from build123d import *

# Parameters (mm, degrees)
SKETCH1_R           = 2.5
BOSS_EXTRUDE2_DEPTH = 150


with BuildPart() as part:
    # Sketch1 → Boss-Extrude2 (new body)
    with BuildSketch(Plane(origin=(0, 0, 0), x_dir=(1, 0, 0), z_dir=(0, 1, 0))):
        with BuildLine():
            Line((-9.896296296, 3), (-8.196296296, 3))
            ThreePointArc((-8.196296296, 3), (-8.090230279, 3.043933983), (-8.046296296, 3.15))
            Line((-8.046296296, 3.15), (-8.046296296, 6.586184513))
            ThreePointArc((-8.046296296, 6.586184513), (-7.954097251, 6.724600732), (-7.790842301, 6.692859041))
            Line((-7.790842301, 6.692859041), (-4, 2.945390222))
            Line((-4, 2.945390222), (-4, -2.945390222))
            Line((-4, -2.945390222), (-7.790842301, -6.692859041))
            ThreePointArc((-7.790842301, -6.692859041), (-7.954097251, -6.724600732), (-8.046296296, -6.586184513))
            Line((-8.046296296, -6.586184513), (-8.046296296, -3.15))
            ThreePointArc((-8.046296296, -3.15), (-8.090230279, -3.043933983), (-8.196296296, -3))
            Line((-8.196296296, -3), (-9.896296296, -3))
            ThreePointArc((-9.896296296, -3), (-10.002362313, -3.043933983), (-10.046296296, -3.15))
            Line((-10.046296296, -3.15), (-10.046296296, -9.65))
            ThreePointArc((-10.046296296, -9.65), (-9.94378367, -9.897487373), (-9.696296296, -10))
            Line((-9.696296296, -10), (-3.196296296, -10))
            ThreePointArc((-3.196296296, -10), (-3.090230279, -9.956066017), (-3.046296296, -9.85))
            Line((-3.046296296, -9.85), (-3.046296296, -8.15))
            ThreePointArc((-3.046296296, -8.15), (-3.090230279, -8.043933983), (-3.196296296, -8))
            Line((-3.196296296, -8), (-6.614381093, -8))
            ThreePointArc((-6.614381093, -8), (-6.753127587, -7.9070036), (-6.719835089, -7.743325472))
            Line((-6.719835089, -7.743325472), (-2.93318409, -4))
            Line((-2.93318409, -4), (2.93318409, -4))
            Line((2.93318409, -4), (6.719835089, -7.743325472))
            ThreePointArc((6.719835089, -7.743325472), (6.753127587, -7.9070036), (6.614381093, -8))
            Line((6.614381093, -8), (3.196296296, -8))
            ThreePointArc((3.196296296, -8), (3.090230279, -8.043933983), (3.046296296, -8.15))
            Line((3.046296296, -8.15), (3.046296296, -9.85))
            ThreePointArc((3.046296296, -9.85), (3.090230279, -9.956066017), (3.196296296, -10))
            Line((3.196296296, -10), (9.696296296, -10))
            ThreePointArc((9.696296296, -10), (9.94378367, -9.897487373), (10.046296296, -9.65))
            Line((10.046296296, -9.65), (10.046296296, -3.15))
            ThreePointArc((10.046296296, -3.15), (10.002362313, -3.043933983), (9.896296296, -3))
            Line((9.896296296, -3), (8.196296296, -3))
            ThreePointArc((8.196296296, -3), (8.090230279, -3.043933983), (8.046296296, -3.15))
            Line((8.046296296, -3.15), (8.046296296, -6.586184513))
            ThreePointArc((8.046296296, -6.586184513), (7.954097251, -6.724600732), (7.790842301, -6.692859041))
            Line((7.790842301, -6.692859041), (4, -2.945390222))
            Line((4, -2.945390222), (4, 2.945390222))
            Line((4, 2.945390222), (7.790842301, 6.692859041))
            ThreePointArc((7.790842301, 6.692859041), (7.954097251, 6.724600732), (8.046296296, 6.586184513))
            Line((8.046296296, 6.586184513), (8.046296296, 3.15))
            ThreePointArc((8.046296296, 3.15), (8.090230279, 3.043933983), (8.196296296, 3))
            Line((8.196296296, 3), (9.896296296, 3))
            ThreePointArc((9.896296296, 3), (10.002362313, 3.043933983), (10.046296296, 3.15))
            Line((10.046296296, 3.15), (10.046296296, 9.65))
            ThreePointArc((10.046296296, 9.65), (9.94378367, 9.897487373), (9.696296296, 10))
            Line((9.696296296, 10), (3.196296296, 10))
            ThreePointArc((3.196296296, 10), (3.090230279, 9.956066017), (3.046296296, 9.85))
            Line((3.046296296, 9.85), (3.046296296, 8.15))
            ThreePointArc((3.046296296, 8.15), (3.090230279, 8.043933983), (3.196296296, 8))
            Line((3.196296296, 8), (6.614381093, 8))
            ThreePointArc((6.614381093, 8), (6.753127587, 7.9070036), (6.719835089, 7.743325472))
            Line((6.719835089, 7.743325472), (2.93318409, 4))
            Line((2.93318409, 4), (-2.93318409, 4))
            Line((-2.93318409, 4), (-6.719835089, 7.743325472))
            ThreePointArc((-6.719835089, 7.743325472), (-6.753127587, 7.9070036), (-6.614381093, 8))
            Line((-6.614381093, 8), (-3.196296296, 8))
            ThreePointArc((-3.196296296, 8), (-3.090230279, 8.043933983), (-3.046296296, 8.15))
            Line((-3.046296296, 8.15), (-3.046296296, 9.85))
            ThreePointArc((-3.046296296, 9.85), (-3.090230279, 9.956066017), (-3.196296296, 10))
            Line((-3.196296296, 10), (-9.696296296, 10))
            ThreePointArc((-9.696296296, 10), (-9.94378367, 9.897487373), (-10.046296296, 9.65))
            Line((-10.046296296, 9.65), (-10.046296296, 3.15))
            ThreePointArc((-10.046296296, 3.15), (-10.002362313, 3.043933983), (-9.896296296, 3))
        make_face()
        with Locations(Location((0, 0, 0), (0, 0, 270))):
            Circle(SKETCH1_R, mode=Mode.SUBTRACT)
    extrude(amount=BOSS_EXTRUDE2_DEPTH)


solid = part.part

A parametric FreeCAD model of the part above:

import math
import FreeCAD as App
import Part
import Sketcher
from FreeCAD import Vector

doc = App.newDocument("Part")
body = doc.addObject("PartDesign::Body", "Body")

# Sketch on XZ plane
sketch1 = body.newObject("Sketcher::SketchObject", "Sketch")
sketch1.AttachmentSupport = (doc.getObject("XZ_Plane"), [""])
sketch1.MapMode = "FlatFace"
sketch1.addGeometry([
    Part.LineSegment(Vector(-9.9, -3, 0), Vector(-8.2, -3, 0)),  # 0
    Part.ArcOfCircle(Part.Circle(Vector(-8.2, -3.15, 0), Vector(0, 0, 1), 0.15), math.radians(0), math.radians(90)),  # 1
    Part.LineSegment(Vector(-8.05, -3.15, 0), Vector(-8.05, -6.59, 0)),  # 2
    Part.ArcOfCircle(Part.Circle(Vector(-7.9, -6.59, 0), Vector(0, 0, 1), 0.15), math.radians(180), math.radians(315)),  # 3
    Part.LineSegment(Vector(-7.79, -6.69, 0), Vector(-4, -2.95, 0)),  # 4
    Part.LineSegment(Vector(-4, -2.95, 0), Vector(-4, 2.95, 0)),  # 5
    Part.LineSegment(Vector(-4, 2.95, 0), Vector(-7.79, 6.69, 0)),  # 6
    Part.ArcOfCircle(Part.Circle(Vector(-7.9, 6.59, 0), Vector(0, 0, 1), 0.15), math.radians(45), math.radians(180)),  # 7
    Part.LineSegment(Vector(-8.05, 6.59, 0), Vector(-8.05, 3.15, 0)),  # 8
    Part.ArcOfCircle(Part.Circle(Vector(-8.2, 3.15, 0), Vector(0, 0, 1), 0.15), math.radians(-90), math.radians(0)),  # 9
    Part.LineSegment(Vector(-8.2, 3, 0), Vector(-9.9, 3, 0)),  # 10
    Part.ArcOfCircle(Part.Circle(Vector(-9.9, 3.15, 0), Vector(0, 0, 1), 0.15), math.radians(-180), math.radians(-90)),  # 11
    Part.LineSegment(Vector(-10.05, 3.15, 0), Vector(-10.05, 9.65, 0)),  # 12
    Part.ArcOfCircle(Part.Circle(Vector(-9.7, 9.65, 0), Vector(0, 0, 1), 0.35), math.radians(90), math.radians(180)),  # 13
    Part.LineSegment(Vector(-9.7, 10, 0), Vector(-3.2, 10, 0)),  # 14
    Part.ArcOfCircle(Part.Circle(Vector(-3.2, 9.85, 0), Vector(0, 0, 1), 0.15), math.radians(0), math.radians(90)),  # 15
    Part.LineSegment(Vector(-3.05, 9.85, 0), Vector(-3.05, 8.15, 0)),  # 16
    Part.ArcOfCircle(Part.Circle(Vector(-3.2, 8.15, 0), Vector(0, 0, 1), 0.15), math.radians(-90), math.radians(0)),  # 17
    Part.LineSegment(Vector(-3.2, 8, 0), Vector(-6.61, 8, 0)),  # 18
    Part.ArcOfCircle(Part.Circle(Vector(-6.61, 7.85, 0), Vector(0, 0, 1), 0.15), math.radians(90), math.radians(225)),  # 19
    Part.LineSegment(Vector(-6.72, 7.74, 0), Vector(-2.93, 4, 0)),  # 20
    Part.LineSegment(Vector(-2.93, 4, 0), Vector(2.93, 4, 0)),  # 21
    Part.LineSegment(Vector(2.93, 4, 0), Vector(6.72, 7.74, 0)),  # 22
    Part.ArcOfCircle(Part.Circle(Vector(6.61, 7.85, 0), Vector(0, 0, 1), 0.15), math.radians(-45), math.radians(90)),  # 23
    Part.LineSegment(Vector(6.61, 8, 0), Vector(3.2, 8, 0)),  # 24
    Part.ArcOfCircle(Part.Circle(Vector(3.2, 8.15, 0), Vector(0, 0, 1), 0.15), math.radians(-180), math.radians(-90)),  # 25
    Part.LineSegment(Vector(3.05, 8.15, 0), Vector(3.05, 9.85, 0)),  # 26
    Part.ArcOfCircle(Part.Circle(Vector(3.2, 9.85, 0), Vector(0, 0, 1), 0.15), math.radians(90), math.radians(180)),  # 27
    Part.LineSegment(Vector(3.2, 10, 0), Vector(9.7, 10, 0)),  # 28
    Part.ArcOfCircle(Part.Circle(Vector(9.7, 9.65, 0), Vector(0, 0, 1), 0.35), math.radians(0), math.radians(90)),  # 29
    Part.LineSegment(Vector(10.05, 9.65, 0), Vector(10.05, 3.15, 0)),  # 30
    Part.ArcOfCircle(Part.Circle(Vector(9.9, 3.15, 0), Vector(0, 0, 1), 0.15), math.radians(-90), math.radians(0)),  # 31
    Part.LineSegment(Vector(9.9, 3, 0), Vector(8.2, 3, 0)),  # 32
    Part.ArcOfCircle(Part.Circle(Vector(8.2, 3.15, 0), Vector(0, 0, 1), 0.15), math.radians(-180), math.radians(-90)),  # 33
    Part.LineSegment(Vector(8.05, 3.15, 0), Vector(8.05, 6.59, 0)),  # 34
    Part.ArcOfCircle(Part.Circle(Vector(7.9, 6.59, 0), Vector(0, 0, 1), 0.15), math.radians(0), math.radians(135)),  # 35
    Part.LineSegment(Vector(7.79, 6.69, 0), Vector(4, 2.95, 0)),  # 36
    Part.LineSegment(Vector(4, 2.95, 0), Vector(4, -2.95, 0)),  # 37
    Part.LineSegment(Vector(4, -2.95, 0), Vector(7.79, -6.69, 0)),  # 38
    Part.ArcOfCircle(Part.Circle(Vector(7.9, -6.59, 0), Vector(0, 0, 1), 0.15), math.radians(-135), math.radians(0)),  # 39
    Part.LineSegment(Vector(8.05, -6.59, 0), Vector(8.05, -3.15, 0)),  # 40
    Part.ArcOfCircle(Part.Circle(Vector(8.2, -3.15, 0), Vector(0, 0, 1), 0.15), math.radians(90), math.radians(180)),  # 41
    Part.LineSegment(Vector(8.2, -3, 0), Vector(9.9, -3, 0)),  # 42
    Part.ArcOfCircle(Part.Circle(Vector(9.9, -3.15, 0), Vector(0, 0, 1), 0.15), math.radians(0), math.radians(90)),  # 43
    Part.LineSegment(Vector(10.05, -3.15, 0), Vector(10.05, -9.65, 0)),  # 44
    Part.ArcOfCircle(Part.Circle(Vector(9.7, -9.65, 0), Vector(0, 0, 1), 0.35), math.radians(-90), math.radians(0)),  # 45
    Part.LineSegment(Vector(9.7, -10, 0), Vector(3.2, -10, 0)),  # 46
    Part.ArcOfCircle(Part.Circle(Vector(3.2, -9.85, 0), Vector(0, 0, 1), 0.15), math.radians(-180), math.radians(-90)),  # 47
    Part.LineSegment(Vector(3.05, -9.85, 0), Vector(3.05, -8.15, 0)),  # 48
    Part.ArcOfCircle(Part.Circle(Vector(3.2, -8.15, 0), Vector(0, 0, 1), 0.15), math.radians(90), math.radians(180)),  # 49
    Part.LineSegment(Vector(3.2, -8, 0), Vector(6.61, -8, 0)),  # 50
    Part.ArcOfCircle(Part.Circle(Vector(6.61, -7.85, 0), Vector(0, 0, 1), 0.15), math.radians(-90), math.radians(45)),  # 51
    Part.LineSegment(Vector(6.72, -7.74, 0), Vector(2.93, -4, 0)),  # 52
    Part.LineSegment(Vector(2.93, -4, 0), Vector(-2.93, -4, 0)),  # 53
    Part.LineSegment(Vector(-2.93, -4, 0), Vector(-6.72, -7.74, 0)),  # 54
    Part.ArcOfCircle(Part.Circle(Vector(-6.61, -7.85, 0), Vector(0, 0, 1), 0.15), math.radians(135), math.radians(270)),  # 55
    Part.LineSegment(Vector(-6.61, -8, 0), Vector(-3.2, -8, 0)),  # 56
    Part.ArcOfCircle(Part.Circle(Vector(-3.2, -8.15, 0), Vector(0, 0, 1), 0.15), math.radians(0), math.radians(90)),  # 57
    Part.LineSegment(Vector(-3.05, -8.15, 0), Vector(-3.05, -9.85, 0)),  # 58
    Part.ArcOfCircle(Part.Circle(Vector(-3.2, -9.85, 0), Vector(0, 0, 1), 0.15), math.radians(-90), math.radians(0)),  # 59
    Part.LineSegment(Vector(-3.2, -10, 0), Vector(-9.7, -10, 0)),  # 60
    Part.ArcOfCircle(Part.Circle(Vector(-9.7, -9.65, 0), Vector(0, 0, 1), 0.35), math.radians(180), math.radians(270)),  # 61
    Part.LineSegment(Vector(-10.05, -9.65, 0), Vector(-10.05, -3.15, 0)),  # 62
    Part.ArcOfCircle(Part.Circle(Vector(-9.9, -3.15, 0), Vector(0, 0, 1), 0.15), math.radians(90), math.radians(180)),  # 63
    Part.Circle(Vector(0, 0, 0), Vector(0, 0, 1), 2.5),  # 64
], False)
sketch1.addConstraint([
    Sketcher.Constraint("Tangent", 0, 2, 1, 2),
    Sketcher.Constraint("Tangent", 1, 1, 2, 1),
    Sketcher.Constraint("Tangent", 2, 2, 3, 1),
    Sketcher.Constraint("Tangent", 3, 2, 4, 1),
    Sketcher.Constraint("Coincident", 4, 2, 5, 1),
    Sketcher.Constraint("Coincident", 5, 2, 6, 1),
    Sketcher.Constraint("Tangent", 6, 2, 7, 1),
    Sketcher.Constraint("Tangent", 7, 2, 8, 1),
    Sketcher.Constraint("Tangent", 8, 2, 9, 2),
    Sketcher.Constraint("Tangent", 9, 1, 10, 1),
    Sketcher.Constraint("Tangent", 10, 2, 11, 2),
    Sketcher.Constraint("Tangent", 11, 1, 12, 1),
    Sketcher.Constraint("Tangent", 12, 2, 13, 2),
    Sketcher.Constraint("Tangent", 13, 1, 14, 1),
    Sketcher.Constraint("Tangent", 14, 2, 15, 2),
    Sketcher.Constraint("Tangent", 15, 1, 16, 1),
    Sketcher.Constraint("Tangent", 16, 2, 17, 2),
    Sketcher.Constraint("Tangent", 17, 1, 18, 1),
    Sketcher.Constraint("Tangent", 18, 2, 19, 1),
    Sketcher.Constraint("Tangent", 19, 2, 20, 1),
    Sketcher.Constraint("Coincident", 20, 2, 21, 1),
    Sketcher.Constraint("Coincident", 21, 2, 22, 1),
    Sketcher.Constraint("Tangent", 22, 2, 23, 1),
    Sketcher.Constraint("Tangent", 23, 2, 24, 1),
    Sketcher.Constraint("Tangent", 24, 2, 25, 2),
    Sketcher.Constraint("Tangent", 25, 1, 26, 1),
    Sketcher.Constraint("Tangent", 26, 2, 27, 2),
    Sketcher.Constraint("Tangent", 27, 1, 28, 1),
    Sketcher.Constraint("Tangent", 28, 2, 29, 2),
    Sketcher.Constraint("Tangent", 29, 1, 30, 1),
    Sketcher.Constraint("Tangent", 30, 2, 31, 2),
    Sketcher.Constraint("Tangent", 31, 1, 32, 1),
    Sketcher.Constraint("Tangent", 32, 2, 33, 2),
    Sketcher.Constraint("Tangent", 33, 1, 34, 1),
    Sketcher.Constraint("Tangent", 34, 2, 35, 1),
    Sketcher.Constraint("Tangent", 35, 2, 36, 1),
    Sketcher.Constraint("Coincident", 36, 2, 37, 1),
    Sketcher.Constraint("Coincident", 37, 2, 38, 1),
    Sketcher.Constraint("Tangent", 38, 2, 39, 1),
    Sketcher.Constraint("Tangent", 39, 2, 40, 1),
    Sketcher.Constraint("Tangent", 40, 2, 41, 2),
    Sketcher.Constraint("Tangent", 41, 1, 42, 1),
    Sketcher.Constraint("Tangent", 42, 2, 43, 2),
    Sketcher.Constraint("Tangent", 43, 1, 44, 1),
    Sketcher.Constraint("Tangent", 44, 2, 45, 2),
    Sketcher.Constraint("Tangent", 45, 1, 46, 1),
    Sketcher.Constraint("Tangent", 46, 2, 47, 2),
    Sketcher.Constraint("Tangent", 47, 1, 48, 1),
    Sketcher.Constraint("Tangent", 48, 2, 49, 2),
    Sketcher.Constraint("Tangent", 49, 1, 50, 1),
    Sketcher.Constraint("Tangent", 50, 2, 51, 1),
    Sketcher.Constraint("Tangent", 51, 2, 52, 1),
    Sketcher.Constraint("Coincident", 52, 2, 53, 1),
    Sketcher.Constraint("Coincident", 53, 2, 54, 1),
    Sketcher.Constraint("Tangent", 54, 2, 55, 1),
    Sketcher.Constraint("Tangent", 55, 2, 56, 1),
    Sketcher.Constraint("Tangent", 56, 2, 57, 2),
    Sketcher.Constraint("Tangent", 57, 1, 58, 1),
    Sketcher.Constraint("Tangent", 58, 2, 59, 2),
    Sketcher.Constraint("Tangent", 59, 1, 60, 1),
    Sketcher.Constraint("Tangent", 60, 2, 61, 2),
    Sketcher.Constraint("Tangent", 61, 1, 62, 1),
    Sketcher.Constraint("Tangent", 62, 2, 63, 2),
    Sketcher.Constraint("Tangent", 63, 1, 0, 1),
    Sketcher.Constraint("Horizontal", 0),
    Sketcher.Constraint("Vertical", 2),
    Sketcher.Constraint("Vertical", 5),
    Sketcher.Constraint("Vertical", 8),
    Sketcher.Constraint("Horizontal", 10),
    Sketcher.Constraint("Vertical", 12),
    Sketcher.Constraint("Horizontal", 14),
    Sketcher.Constraint("Vertical", 16),
    Sketcher.Constraint("Horizontal", 18),
    Sketcher.Constraint("Horizontal", 21),
    Sketcher.Constraint("Horizontal", 24),
    Sketcher.Constraint("Vertical", 26),
    Sketcher.Constraint("Horizontal", 28),
    Sketcher.Constraint("Vertical", 30),
    Sketcher.Constraint("Horizontal", 32),
    Sketcher.Constraint("Vertical", 34),
    Sketcher.Constraint("Vertical", 37),
    Sketcher.Constraint("Vertical", 40),
    Sketcher.Constraint("Horizontal", 42),
    Sketcher.Constraint("Vertical", 44),
    Sketcher.Constraint("Horizontal", 46),
    Sketcher.Constraint("Vertical", 48),
    Sketcher.Constraint("Horizontal", 50),
    Sketcher.Constraint("Horizontal", 53),
    Sketcher.Constraint("Horizontal", 56),
    Sketcher.Constraint("Vertical", 58),
    Sketcher.Constraint("Horizontal", 60),
    Sketcher.Constraint("Vertical", 62),
    Sketcher.Constraint("Coincident", 64, 3, -1, 1),
    Sketcher.Constraint("Equal", 1, 3),
    Sketcher.Constraint("Equal", 3, 7),
    Sketcher.Constraint("Equal", 7, 9),
    Sketcher.Constraint("Equal", 9, 11),
    Sketcher.Constraint("Equal", 11, 15),
    Sketcher.Constraint("Equal", 15, 17),
    Sketcher.Constraint("Equal", 17, 19),
    Sketcher.Constraint("Equal", 19, 23),
    Sketcher.Constraint("Equal", 23, 25),
    Sketcher.Constraint("Equal", 25, 27),
    Sketcher.Constraint("Equal", 13, 29),
    Sketcher.Constraint("Equal", 27, 31),
    Sketcher.Constraint("Equal", 31, 33),
    Sketcher.Constraint("Equal", 33, 35),
    Sketcher.Constraint("Equal", 35, 39),
    Sketcher.Constraint("Equal", 39, 41),
    Sketcher.Constraint("Equal", 41, 43),
    Sketcher.Constraint("Equal", 29, 45),
    Sketcher.Constraint("Equal", 43, 47),
    Sketcher.Constraint("Equal", 47, 49),
    Sketcher.Constraint("Equal", 49, 51),
    Sketcher.Constraint("Equal", 51, 55),
    Sketcher.Constraint("Equal", 55, 57),
    Sketcher.Constraint("Equal", 57, 59),
    Sketcher.Constraint("Equal", 45, 61),
    Sketcher.Constraint("Equal", 59, 63),
    Sketcher.Constraint("Symmetric", 1, 3, 33, 3, -1, 1),
    Sketcher.Constraint("Symmetric", 7, 3, 39, 3, -1, 1),
    Sketcher.Constraint("Symmetric", 11, 3, 43, 3, -1, 1),
    Sketcher.Constraint("Symmetric", 15, 3, 47, 3, -1, 1),
    Sketcher.Constraint("Symmetric", 19, 3, 51, 3, -1, 1),
    Sketcher.Constraint("Symmetric", 23, 3, 55, 3, -1, 1),
    Sketcher.Constraint("Symmetric", 27, 3, 59, 3, -1, 1),
    Sketcher.Constraint("Symmetric", 3, 2, 35, 2, -1, 1),
    Sketcher.Constraint("Symmetric", 5, 2, 37, 2, -1, 1),
    Sketcher.Constraint("Symmetric", 20, 2, 52, 2, -1, 1),
    Sketcher.Constraint("Symmetric", 19, 3, 23, 3, -2),
    Sketcher.Constraint("Symmetric", 15, 3, 27, 3, -2),
    Sketcher.Constraint("Symmetric", 11, 3, 31, 3, -2),
    Sketcher.Constraint("Symmetric", 7, 3, 35, 3, -2),
    Sketcher.Constraint("Parallel", 6, 20),
    Sketcher.Constraint("Parallel", 4, 22),
    Sketcher.Constraint("Parallel", 36, 54),
    Sketcher.Constraint("Horizontal", 19, 2, 22, 2),
    Sketcher.Constraint("Vertical", 13, 3, 61, 3),
    Sketcher.Constraint("Equal", 60, 12),
    Sketcher.Constraint("Equal", 42, 16),
    Sketcher.Constraint("Diameter", 64, 5.0),
    Sketcher.Constraint("Radius", 1, 0.15),
    Sketcher.Constraint("Radius", 13, 0.35),
    Sketcher.Constraint("DistanceX", 0, 1, 0, 2, 1.7),
    Sketcher.Constraint("DistanceX", 14, 1, 14, 2, 6.5),
    Sketcher.Constraint("DistanceY", 0, 2, -1, 1, 3.0),
    Sketcher.Constraint("DistanceX", 4, 2, -1, 1, 4.0),
    Sketcher.Constraint("DistanceY", -1, 1, 20, 2, 4.0),
    Sketcher.Constraint("DistanceX", 21, 1, 21, 2, 5.866368),
    Sketcher.Constraint("DistanceY", 5, 1, 5, 2, 5.89078),
    Sketcher.Constraint("Distance", 4, 5.330479),
    Sketcher.Constraint("DistanceX", 18, 2, 18, 1, 3.418085),
])
pad1 = body.newObject("PartDesign::Pad", "Pad")
pad1.Profile = sketch1
pad1.Length = 150
pad1.Reversed = True

doc.recompute()
